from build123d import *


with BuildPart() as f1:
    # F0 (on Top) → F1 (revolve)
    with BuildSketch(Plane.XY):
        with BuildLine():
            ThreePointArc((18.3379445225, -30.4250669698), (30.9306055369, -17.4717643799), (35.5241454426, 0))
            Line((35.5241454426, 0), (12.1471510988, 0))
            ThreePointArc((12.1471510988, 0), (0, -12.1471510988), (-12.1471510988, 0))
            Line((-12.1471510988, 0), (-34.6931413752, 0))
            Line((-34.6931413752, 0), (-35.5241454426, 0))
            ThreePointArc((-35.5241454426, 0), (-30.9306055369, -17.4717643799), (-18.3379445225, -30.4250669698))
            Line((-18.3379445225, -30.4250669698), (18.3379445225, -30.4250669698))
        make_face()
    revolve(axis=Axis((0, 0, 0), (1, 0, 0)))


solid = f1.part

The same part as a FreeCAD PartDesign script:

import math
import FreeCAD as App
import Part
import Sketcher
from FreeCAD import Vector
Q = App.Units.Quantity

doc = App.newDocument("Part")
body = doc.addObject("PartDesign::Body", "Body")

# Sketch on XY plane
sketch1 = doc.addObject("Sketcher::SketchObject", "Sketch")
body.addObject(sketch1)
sketch1.AttachmentSupport = (doc.XY_Plane, [""])
sketch1.MapMode = "FlatFace"
sketch1.addGeometry(Part.ArcOfCircle(Part.Circle(Vector(0, 0, 0), Vector(0, 0, 1), 36), math.radians(-59), math.radians(0)), False)
sketch1.addGeometry(Part.LineSegment(Vector(36, 0, 0), Vector(12, 0, 0)), False)
sketch1.addGeometry(Part.ArcOfCircle(Part.Circle(Vector(0, 0, 0), Vector(0, 0, 1), 12), math.radians(180), math.radians(360)), False)
sketch1.addGeometry(Part.LineSegment(Vector(-12, 0, 0), Vector(-36, 0, 0)), False)
sketch1.addGeometry(Part.ArcOfCircle(Part.Circle(Vector(0, 0, 0), Vector(0, 0, 1), 36), math.radians(180), math.radians(239)), False)
sketch1.addGeometry(Part.LineSegment(Vector(-18, -30, 0), Vector(18, -30, 0)), False)
sketch1.addConstraint(Sketcher.Constraint("Coincident", 0, 2, 1, 1))
sketch1.addConstraint(Sketcher.Constraint("Coincident", 1, 2, 2, 2))
sketch1.addConstraint(Sketcher.Constraint("Coincident", 2, 1, 3, 1))
sketch1.addConstraint(Sketcher.Constraint("Coincident", 3, 2, 4, 1))
sketch1.addConstraint(Sketcher.Constraint("Coincident", 4, 2, 5, 1))
sketch1.addConstraint(Sketcher.Constraint("Coincident", 5, 2, 0, 1))
sketch1.addConstraint(Sketcher.Constraint("Horizontal", 1))
sketch1.addConstraint(Sketcher.Constraint("Horizontal", 3))
sketch1.addConstraint(Sketcher.Constraint("Horizontal", 5))
sketch1.addConstraint(Sketcher.Constraint("Coincident", 0, 3, -1, 1))
sketch1.addConstraint(Sketcher.Constraint("Coincident", 2, 3, -1, 1))
sketch1.addConstraint(Sketcher.Constraint("Coincident", 4, 3, -1, 1))
sketch1.addConstraint(Sketcher.Constraint("Equal", 0, 4))
sketch1.addConstraint(Sketcher.Constraint("PointOnObject", 0, 2, -1))
sketch1.addConstraint(Sketcher.Constraint("PointOnObject", 2, 1, -1))
sketch1.addConstraint(Sketcher.Constraint("Radius", 2, Q("12.147151 mm")))
sketch1.addConstraint(Sketcher.Constraint("Radius", 0, Q("35.524145 mm")))
sketch1.addConstraint(Sketcher.Constraint("DistanceX", 5, 1, 5, 2, Q("36.675889 mm")))
revolution = doc.addObject("PartDesign::Revolution", "Revolution")
body.addObject(revolution)
revolution.Profile = sketch1
revolution.ReferenceAxis = (sketch1, ["H_Axis"])
revolution.Angle = 360

doc.recompute()
